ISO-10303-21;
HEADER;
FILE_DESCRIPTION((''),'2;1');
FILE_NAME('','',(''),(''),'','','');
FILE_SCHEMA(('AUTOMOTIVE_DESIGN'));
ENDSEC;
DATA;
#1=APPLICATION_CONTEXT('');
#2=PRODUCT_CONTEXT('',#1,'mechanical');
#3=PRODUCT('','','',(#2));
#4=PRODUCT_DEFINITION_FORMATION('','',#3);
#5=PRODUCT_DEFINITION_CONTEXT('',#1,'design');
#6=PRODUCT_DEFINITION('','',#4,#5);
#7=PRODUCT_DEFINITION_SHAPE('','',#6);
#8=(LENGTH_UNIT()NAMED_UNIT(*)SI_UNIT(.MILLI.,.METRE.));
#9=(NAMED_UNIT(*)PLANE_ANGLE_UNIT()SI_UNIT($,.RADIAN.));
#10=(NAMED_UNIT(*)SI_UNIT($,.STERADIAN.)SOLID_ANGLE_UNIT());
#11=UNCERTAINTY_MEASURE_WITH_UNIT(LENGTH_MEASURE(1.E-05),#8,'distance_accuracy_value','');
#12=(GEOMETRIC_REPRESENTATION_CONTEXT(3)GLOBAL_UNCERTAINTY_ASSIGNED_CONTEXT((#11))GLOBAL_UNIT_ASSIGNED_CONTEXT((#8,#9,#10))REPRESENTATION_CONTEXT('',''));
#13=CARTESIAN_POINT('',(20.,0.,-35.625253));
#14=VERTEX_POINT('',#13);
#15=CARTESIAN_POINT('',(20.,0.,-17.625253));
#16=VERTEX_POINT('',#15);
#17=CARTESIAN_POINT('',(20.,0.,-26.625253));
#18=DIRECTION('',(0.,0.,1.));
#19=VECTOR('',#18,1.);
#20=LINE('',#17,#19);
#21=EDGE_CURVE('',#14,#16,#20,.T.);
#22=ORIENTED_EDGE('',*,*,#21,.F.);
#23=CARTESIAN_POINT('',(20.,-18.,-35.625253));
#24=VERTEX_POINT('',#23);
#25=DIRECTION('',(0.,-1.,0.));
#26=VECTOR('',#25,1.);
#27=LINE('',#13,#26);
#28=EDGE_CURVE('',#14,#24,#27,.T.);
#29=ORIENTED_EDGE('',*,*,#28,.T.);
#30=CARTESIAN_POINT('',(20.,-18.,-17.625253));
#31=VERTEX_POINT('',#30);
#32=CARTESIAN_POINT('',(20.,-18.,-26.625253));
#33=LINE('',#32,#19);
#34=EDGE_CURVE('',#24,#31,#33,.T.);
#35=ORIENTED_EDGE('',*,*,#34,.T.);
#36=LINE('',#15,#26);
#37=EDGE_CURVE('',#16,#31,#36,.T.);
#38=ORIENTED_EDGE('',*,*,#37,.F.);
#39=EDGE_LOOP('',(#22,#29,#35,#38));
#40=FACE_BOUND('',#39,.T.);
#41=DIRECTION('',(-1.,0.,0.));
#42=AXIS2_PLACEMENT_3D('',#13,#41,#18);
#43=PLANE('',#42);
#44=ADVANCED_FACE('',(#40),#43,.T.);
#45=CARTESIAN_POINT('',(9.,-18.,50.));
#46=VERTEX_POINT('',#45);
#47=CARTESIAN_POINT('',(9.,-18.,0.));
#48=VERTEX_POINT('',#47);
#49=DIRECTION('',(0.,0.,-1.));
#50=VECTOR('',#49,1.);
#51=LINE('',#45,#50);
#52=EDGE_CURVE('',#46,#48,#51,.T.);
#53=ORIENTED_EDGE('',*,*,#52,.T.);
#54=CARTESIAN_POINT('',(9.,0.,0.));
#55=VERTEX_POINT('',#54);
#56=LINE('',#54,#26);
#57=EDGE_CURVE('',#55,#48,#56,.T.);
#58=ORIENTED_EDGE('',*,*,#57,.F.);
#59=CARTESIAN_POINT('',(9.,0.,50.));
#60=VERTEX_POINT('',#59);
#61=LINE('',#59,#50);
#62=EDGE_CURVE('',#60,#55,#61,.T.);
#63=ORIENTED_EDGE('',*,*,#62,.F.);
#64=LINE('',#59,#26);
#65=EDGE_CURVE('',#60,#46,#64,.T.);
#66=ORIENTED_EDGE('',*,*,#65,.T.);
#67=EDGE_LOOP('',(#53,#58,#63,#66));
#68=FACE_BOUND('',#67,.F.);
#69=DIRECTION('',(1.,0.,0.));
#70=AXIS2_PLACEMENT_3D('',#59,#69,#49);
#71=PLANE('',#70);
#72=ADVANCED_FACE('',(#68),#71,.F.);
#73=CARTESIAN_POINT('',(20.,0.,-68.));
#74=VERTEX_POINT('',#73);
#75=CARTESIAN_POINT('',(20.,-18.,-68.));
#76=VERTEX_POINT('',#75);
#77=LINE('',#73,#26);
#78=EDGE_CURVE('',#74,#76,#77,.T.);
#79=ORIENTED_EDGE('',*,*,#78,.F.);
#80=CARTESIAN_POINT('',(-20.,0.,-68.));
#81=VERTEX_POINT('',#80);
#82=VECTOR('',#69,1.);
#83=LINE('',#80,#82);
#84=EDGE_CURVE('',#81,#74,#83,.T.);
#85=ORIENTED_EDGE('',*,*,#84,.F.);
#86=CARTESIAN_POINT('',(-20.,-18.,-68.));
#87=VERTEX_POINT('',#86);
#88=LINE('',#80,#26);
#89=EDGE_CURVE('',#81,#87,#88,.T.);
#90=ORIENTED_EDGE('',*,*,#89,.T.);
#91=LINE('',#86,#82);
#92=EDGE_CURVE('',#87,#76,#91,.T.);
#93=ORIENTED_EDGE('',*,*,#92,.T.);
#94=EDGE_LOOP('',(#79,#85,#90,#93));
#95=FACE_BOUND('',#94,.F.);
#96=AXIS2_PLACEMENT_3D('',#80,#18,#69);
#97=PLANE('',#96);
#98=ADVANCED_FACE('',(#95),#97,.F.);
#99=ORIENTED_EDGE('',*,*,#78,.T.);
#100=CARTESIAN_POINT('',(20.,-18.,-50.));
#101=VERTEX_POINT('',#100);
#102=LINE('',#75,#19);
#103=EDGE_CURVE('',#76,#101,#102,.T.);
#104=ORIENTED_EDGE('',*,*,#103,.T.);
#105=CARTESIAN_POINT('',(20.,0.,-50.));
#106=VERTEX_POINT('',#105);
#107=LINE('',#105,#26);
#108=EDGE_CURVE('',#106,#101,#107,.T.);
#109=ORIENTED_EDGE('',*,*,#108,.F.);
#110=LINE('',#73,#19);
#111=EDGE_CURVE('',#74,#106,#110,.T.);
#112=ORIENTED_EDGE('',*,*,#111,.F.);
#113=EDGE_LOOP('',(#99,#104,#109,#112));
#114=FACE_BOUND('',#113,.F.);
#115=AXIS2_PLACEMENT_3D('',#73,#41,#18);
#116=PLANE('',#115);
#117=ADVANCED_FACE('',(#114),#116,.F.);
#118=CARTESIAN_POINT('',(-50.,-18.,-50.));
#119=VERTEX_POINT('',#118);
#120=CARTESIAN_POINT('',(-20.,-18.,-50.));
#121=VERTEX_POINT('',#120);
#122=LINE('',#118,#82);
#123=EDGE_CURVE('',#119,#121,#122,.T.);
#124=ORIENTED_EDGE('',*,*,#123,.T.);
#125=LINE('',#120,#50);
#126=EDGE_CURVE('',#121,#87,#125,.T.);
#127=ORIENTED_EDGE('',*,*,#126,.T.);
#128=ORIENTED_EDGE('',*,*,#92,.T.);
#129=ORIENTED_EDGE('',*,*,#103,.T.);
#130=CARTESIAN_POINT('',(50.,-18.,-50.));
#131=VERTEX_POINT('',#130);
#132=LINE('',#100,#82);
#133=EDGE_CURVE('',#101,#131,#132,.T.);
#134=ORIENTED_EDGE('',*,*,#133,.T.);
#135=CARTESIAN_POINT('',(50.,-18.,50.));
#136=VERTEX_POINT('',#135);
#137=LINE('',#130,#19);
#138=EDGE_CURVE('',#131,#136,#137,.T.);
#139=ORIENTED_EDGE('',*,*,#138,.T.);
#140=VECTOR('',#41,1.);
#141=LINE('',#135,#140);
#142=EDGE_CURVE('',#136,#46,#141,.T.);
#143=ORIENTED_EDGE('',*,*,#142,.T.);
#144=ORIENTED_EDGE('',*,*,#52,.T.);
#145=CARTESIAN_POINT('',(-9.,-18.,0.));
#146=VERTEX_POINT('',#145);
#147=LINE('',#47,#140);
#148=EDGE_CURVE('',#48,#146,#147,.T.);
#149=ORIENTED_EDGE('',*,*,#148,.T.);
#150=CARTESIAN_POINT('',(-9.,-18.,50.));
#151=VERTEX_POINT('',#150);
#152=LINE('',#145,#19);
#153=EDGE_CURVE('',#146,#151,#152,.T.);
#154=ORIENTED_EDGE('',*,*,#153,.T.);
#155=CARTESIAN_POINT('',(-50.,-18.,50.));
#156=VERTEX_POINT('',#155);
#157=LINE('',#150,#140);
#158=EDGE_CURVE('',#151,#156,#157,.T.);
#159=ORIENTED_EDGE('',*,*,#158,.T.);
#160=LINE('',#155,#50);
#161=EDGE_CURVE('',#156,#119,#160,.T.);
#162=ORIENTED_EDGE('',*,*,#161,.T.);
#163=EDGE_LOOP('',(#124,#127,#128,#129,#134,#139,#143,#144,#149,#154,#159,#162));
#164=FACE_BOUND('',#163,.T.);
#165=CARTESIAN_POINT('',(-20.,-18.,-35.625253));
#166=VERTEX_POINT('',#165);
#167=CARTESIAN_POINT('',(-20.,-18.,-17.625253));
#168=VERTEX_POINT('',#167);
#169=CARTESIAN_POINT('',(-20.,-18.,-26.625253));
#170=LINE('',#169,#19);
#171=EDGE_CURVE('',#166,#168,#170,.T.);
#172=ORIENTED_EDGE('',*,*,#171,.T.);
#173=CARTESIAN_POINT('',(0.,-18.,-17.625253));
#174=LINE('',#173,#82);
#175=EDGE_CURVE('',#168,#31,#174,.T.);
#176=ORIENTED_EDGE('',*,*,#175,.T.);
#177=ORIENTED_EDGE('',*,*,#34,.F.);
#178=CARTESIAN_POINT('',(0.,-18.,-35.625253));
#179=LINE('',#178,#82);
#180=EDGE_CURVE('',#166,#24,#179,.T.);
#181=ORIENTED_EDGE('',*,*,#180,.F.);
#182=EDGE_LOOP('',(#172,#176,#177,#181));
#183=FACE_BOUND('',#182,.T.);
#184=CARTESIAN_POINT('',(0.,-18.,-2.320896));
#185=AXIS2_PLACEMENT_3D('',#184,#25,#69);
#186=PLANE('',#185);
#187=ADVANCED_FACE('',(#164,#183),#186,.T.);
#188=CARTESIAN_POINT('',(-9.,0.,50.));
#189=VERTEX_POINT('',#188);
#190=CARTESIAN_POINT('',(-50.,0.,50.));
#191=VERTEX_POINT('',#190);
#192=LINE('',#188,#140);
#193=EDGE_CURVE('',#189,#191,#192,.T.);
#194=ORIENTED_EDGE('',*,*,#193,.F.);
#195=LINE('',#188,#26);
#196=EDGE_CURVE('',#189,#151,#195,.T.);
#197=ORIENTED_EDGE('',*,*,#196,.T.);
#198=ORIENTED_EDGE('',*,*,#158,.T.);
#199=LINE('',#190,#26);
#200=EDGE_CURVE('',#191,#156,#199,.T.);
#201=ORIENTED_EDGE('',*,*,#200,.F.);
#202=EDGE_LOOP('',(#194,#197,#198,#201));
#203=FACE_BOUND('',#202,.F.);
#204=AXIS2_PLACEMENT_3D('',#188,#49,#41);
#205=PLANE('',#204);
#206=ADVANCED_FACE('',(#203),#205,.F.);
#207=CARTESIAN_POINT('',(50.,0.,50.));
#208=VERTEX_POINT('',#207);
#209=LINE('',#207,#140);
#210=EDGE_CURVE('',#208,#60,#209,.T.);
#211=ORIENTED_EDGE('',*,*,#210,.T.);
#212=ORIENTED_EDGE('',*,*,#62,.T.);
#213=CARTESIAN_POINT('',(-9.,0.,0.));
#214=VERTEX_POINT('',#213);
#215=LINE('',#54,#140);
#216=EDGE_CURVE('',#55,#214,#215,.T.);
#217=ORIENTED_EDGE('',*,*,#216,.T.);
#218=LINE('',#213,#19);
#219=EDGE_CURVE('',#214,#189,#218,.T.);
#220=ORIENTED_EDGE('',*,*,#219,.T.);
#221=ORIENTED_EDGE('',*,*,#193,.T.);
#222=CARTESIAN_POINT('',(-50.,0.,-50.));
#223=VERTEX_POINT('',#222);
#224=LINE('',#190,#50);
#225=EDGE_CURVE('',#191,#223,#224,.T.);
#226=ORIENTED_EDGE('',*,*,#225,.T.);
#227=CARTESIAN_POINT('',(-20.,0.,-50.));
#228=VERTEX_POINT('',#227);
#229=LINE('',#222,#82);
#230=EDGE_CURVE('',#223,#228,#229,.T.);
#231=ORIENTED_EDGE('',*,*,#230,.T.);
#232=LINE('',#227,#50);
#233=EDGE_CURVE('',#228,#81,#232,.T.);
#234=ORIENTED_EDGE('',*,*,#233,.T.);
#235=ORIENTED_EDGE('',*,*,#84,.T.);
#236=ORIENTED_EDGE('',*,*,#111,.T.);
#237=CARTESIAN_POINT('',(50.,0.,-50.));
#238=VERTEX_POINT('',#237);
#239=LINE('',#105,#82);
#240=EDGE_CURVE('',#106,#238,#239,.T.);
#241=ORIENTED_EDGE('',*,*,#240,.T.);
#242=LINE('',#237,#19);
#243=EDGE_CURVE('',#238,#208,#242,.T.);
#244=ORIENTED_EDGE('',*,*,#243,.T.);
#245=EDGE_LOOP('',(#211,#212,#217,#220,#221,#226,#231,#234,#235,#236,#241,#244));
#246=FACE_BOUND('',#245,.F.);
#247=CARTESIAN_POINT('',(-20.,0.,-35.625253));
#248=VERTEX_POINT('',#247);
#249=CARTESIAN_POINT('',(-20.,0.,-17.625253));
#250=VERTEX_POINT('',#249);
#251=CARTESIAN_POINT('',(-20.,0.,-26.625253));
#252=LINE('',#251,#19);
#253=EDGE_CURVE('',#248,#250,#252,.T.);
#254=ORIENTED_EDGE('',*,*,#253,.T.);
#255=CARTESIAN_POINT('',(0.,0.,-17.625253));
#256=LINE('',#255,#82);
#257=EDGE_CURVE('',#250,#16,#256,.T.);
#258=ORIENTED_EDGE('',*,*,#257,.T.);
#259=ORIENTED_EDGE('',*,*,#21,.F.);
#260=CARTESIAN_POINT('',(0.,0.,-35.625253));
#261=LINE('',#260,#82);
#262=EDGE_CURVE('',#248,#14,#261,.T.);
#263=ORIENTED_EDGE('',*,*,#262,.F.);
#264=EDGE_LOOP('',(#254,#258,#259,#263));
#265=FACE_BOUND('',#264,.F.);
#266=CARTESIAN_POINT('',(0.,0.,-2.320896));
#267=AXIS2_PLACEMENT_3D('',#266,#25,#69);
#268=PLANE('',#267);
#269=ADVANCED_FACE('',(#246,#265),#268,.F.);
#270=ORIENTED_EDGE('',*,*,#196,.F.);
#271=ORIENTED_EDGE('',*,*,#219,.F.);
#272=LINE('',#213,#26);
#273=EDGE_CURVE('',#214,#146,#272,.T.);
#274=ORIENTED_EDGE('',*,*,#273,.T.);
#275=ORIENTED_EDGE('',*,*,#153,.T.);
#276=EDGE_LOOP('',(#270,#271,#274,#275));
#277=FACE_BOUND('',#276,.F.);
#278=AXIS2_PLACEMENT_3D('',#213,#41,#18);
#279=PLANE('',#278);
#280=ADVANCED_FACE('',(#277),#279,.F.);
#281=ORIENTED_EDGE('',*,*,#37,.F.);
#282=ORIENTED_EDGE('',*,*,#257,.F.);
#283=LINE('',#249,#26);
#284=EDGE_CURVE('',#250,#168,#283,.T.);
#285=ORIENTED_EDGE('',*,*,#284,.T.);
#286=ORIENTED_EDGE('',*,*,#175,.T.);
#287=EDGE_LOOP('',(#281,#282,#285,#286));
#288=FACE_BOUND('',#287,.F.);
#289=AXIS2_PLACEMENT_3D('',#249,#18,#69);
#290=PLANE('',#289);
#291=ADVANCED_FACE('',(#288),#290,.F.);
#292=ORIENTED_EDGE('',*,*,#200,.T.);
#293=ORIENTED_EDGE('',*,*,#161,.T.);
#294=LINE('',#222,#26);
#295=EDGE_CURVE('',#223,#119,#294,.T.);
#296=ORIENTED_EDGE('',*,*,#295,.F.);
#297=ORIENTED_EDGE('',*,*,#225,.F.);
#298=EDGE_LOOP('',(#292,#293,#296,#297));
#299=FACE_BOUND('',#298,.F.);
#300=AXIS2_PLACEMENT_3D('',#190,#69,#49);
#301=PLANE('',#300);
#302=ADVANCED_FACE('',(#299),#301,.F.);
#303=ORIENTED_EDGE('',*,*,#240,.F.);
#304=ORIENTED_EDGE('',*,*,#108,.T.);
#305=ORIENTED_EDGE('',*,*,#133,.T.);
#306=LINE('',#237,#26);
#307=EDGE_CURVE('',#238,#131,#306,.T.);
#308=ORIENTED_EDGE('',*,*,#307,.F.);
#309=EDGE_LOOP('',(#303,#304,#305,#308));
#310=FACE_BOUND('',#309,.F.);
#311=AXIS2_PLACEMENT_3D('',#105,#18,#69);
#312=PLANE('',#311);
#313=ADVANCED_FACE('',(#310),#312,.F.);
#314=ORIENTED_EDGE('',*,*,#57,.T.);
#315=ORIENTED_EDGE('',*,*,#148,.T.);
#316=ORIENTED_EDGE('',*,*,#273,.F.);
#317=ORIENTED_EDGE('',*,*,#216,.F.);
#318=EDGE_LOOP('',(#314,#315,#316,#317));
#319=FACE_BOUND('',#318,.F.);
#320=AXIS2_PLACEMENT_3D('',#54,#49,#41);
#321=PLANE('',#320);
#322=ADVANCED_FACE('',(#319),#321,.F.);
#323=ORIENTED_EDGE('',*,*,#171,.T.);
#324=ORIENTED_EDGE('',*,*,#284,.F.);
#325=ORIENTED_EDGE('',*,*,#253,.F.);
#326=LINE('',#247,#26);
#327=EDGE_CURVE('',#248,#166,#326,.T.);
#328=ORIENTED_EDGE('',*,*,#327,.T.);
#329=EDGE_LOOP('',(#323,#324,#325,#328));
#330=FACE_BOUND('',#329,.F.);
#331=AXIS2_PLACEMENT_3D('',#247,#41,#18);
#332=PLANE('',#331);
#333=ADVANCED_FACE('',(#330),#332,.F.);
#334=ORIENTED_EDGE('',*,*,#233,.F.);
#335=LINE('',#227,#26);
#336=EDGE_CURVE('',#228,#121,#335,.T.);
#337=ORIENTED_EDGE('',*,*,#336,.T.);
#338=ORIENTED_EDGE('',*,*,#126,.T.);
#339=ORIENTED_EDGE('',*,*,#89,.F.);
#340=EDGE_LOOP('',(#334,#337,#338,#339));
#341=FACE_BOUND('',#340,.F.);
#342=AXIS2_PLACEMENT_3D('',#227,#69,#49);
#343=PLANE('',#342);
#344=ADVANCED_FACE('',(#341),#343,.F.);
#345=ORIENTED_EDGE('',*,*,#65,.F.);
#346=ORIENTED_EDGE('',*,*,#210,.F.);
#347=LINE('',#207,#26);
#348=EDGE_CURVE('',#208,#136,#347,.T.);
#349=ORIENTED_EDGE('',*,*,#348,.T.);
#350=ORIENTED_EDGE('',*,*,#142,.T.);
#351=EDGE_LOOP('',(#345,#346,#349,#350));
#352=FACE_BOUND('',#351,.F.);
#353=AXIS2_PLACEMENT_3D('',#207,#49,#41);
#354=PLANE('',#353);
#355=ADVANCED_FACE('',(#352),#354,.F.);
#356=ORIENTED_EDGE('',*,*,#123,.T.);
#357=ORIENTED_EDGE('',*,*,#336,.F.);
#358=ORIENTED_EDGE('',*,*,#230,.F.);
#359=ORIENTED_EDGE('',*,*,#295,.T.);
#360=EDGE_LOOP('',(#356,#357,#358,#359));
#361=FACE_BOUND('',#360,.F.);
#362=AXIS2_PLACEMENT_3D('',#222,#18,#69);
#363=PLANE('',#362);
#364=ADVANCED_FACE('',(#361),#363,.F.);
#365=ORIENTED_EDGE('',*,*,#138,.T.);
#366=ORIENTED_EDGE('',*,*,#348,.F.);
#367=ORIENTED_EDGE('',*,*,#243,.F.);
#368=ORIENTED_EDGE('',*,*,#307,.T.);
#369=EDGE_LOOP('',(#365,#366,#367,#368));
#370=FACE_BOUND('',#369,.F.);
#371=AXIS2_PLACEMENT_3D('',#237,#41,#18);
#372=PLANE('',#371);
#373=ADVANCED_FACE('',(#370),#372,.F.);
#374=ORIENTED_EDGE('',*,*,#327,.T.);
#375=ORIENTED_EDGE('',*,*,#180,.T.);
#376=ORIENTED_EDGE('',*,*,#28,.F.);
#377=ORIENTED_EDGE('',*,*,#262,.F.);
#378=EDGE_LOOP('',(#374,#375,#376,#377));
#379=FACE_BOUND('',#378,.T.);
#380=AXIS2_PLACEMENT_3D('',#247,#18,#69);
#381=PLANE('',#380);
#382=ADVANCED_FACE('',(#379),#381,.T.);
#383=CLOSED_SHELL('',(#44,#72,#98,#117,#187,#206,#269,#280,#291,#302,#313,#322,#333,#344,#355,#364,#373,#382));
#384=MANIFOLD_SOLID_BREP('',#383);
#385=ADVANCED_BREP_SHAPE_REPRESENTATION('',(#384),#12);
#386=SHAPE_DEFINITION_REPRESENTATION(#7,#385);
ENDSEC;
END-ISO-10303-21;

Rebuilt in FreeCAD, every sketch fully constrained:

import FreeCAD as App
import Part
import Sketcher

V = App.Vector

doc = App.newDocument("Part")
body = doc.addObject("PartDesign::Body", "Body")

# Sketch on XZ plane
sketch1 = doc.addObject("Sketcher::SketchObject", "Sketch")
body.addObject(sketch1)
sketch1.AttachmentSupport = (doc.XZ_Plane, [""])
sketch1.MapMode = "FlatFace"
sketch1.addGeometry([
    Part.LineSegment(V(50, -50, 0), V(50, 50, 0)),  # 0
    Part.LineSegment(V(50, 50, 0), V(9, 50, 0)),  # 1
    Part.LineSegment(V(9, 50, 0), V(9, 0, 0)),  # 2
    Part.LineSegment(V(9, 0, 0), V(-9, 0, 0)),  # 3
    Part.LineSegment(V(-9, 0, 0), V(-9, 50, 0)),  # 4
    Part.LineSegment(V(-9, 50, 0), V(-50, 50, 0)),  # 5
    Part.LineSegment(V(-50, 50, 0), V(-50, -50, 0)),  # 6
    Part.LineSegment(V(-50, -50, 0), V(-20, -50, 0)),  # 7
    Part.LineSegment(V(-20, -50, 0), V(-20, -68, 0)),  # 8
    Part.LineSegment(V(-20, -68, 0), V(20, -68, 0)),  # 9
    Part.LineSegment(V(20, -68, 0), V(20, -50, 0)),  # 10
    Part.LineSegment(V(20, -50, 0), V(50, -50, 0)),  # 11
    Part.LineSegment(V(20, -36, 0), V(-20, -36, 0)),  # 12
    Part.LineSegment(V(-20, -36, 0), V(-20, -18, 0)),  # 13
    Part.LineSegment(V(-20, -18, 0), V(20, -18, 0)),  # 14
    Part.LineSegment(V(20, -18, 0), V(20, -36, 0)),  # 15
], False)
sketch1.addConstraint([
    Sketcher.Constraint("Coincident", 0, 2, 1, 1),
    Sketcher.Constraint("Coincident", 1, 2, 2, 1),
    Sketcher.Constraint("Coincident", 2, 2, 3, 1),
    Sketcher.Constraint("Coincident", 3, 2, 4, 1),
    Sketcher.Constraint("Coincident", 4, 2, 5, 1),
    Sketcher.Constraint("Coincident", 5, 2, 6, 1),
    Sketcher.Constraint("Coincident", 6, 2, 7, 1),
    Sketcher.Constraint("Coincident", 7, 2, 8, 1),
    Sketcher.Constraint("Coincident", 8, 2, 9, 1),
    Sketcher.Constraint("Coincident", 9, 2, 10, 1),
    Sketcher.Constraint("Coincident", 10, 2, 11, 1),
    Sketcher.Constraint("Coincident", 11, 2, 0, 1),
    Sketcher.Constraint("Coincident", 12, 2, 13, 1),
    Sketcher.Constraint("Coincident", 13, 2, 14, 1),
    Sketcher.Constraint("Coincident", 14, 2, 15, 1),
    Sketcher.Constraint("Coincident", 15, 2, 12, 1),
    Sketcher.Constraint("Vertical", 0),
    Sketcher.Constraint("Horizontal", 1),
    Sketcher.Constraint("Vertical", 2),
    Sketcher.Constraint("Horizontal", 3),
    Sketcher.Constraint("Vertical", 4),
    Sketcher.Constraint("Horizontal", 5),
    Sketcher.Constraint("Vertical", 6),
    Sketcher.Constraint("Horizontal", 7),
    Sketcher.Constraint("Vertical", 8),
    Sketcher.Constraint("Horizontal", 9),
    Sketcher.Constraint("Vertical", 10),
    Sketcher.Constraint("Horizontal", 11),
    Sketcher.Constraint("Horizontal", 12),
    Sketcher.Constraint("Vertical", 13),
    Sketcher.Constraint("Horizontal", 14),
    Sketcher.Constraint("Vertical", 15),
    Sketcher.Constraint("Symmetric", 2, 2, 3, 2, -1, 1),
    Sketcher.Constraint("Symmetric", 0, 2, 6, 2, -1, 1),
    Sketcher.Constraint("Symmetric", 7, 2, 10, 2, -2),
    Sketcher.Constraint("Horizontal", 1, 2, 4, 2),
    Sketcher.Constraint("Vertical", 8, 2, 12, 2),
    Sketcher.Constraint("Vertical", 10, 2, 14, 2),
    Sketcher.Constraint("Equal", 3, 8),
    Sketcher.Constraint("Equal", 10, 13),
    Sketcher.Constraint("DistanceX", 1, 2, 1, 1, 41.0),
    Sketcher.Constraint("DistanceX", 3, 2, 3, 1, 18.0),
    Sketcher.Constraint("DistanceX", 7, 1, 7, 2, 30.0),
    Sketcher.Constraint("DistanceY", 0, 1, 0, 2, 100.0),
    Sketcher.Constraint("DistanceY", 12, 2, -1, 1, 35.625253),
])
pad1 = doc.addObject("PartDesign::Pad", "Pad")
body.addObject(pad1)
pad1.Profile = sketch1
pad1.Length = 18

doc.recompute()
